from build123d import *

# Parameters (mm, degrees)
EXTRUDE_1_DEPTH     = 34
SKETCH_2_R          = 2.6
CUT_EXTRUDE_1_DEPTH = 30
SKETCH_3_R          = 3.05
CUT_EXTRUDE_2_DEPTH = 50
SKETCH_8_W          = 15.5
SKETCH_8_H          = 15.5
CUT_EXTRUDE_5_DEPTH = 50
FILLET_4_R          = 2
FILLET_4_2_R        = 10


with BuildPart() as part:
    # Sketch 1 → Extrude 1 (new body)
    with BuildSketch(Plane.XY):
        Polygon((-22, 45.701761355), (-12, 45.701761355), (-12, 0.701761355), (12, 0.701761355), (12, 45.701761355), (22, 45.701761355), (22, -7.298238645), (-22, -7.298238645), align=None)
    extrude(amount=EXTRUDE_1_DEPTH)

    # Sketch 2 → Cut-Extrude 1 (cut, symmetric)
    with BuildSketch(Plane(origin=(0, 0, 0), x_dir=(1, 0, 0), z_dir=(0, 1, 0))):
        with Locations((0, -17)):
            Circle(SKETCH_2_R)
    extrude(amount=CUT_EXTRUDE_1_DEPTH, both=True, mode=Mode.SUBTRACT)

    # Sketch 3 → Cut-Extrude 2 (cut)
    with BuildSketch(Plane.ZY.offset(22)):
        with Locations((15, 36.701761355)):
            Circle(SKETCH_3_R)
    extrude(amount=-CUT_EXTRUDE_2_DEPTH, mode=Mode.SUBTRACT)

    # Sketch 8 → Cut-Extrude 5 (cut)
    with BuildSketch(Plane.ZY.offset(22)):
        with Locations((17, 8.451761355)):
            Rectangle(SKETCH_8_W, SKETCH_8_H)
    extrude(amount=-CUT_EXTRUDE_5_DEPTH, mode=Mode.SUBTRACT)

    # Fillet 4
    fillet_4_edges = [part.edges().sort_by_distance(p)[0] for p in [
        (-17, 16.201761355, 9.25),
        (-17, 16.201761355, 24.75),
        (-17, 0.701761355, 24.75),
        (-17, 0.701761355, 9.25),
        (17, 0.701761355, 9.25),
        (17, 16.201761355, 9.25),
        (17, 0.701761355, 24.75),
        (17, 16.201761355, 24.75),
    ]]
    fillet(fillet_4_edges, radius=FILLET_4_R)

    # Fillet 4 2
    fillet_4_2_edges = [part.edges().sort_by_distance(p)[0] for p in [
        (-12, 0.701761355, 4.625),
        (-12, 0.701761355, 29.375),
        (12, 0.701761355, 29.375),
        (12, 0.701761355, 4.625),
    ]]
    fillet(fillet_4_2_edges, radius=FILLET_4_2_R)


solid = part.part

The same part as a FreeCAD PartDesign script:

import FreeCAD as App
import Part
import Sketcher
from FreeCAD import Vector
Q = App.Units.Quantity


def edges_at(feature, points):
    """Names of the edges that pass closest to the given points."""
    edges = feature.Shape.Edges
    near = lambda p: min(range(len(edges)), key=lambda i: edges[i].distToShape(Part.Vertex(*p))[0])
    return sorted({f"Edge{near(p) + 1}" for p in points})

doc = App.newDocument("Part")
body = doc.addObject("PartDesign::Body", "Body")

sketch1 = doc.addObject("Sketcher::SketchObject", "Sketch")
body.addObject(sketch1)
sketch1.AttachmentSupport = (doc.XY_Plane, [""])
sketch1.MapMode = "FlatFace"
sketch1.addGeometry([
    Part.LineSegment(Vector(-12, 45.701761, 0), Vector(-22, 45.701761, 0)),
    Part.LineSegment(Vector(-22, 45.701761, 0), Vector(-22, -7.298239, 0)),
    Part.LineSegment(Vector(-22, -7.298239, 0), Vector(22, -7.298239, 0)),
    Part.LineSegment(Vector(22, -7.298239, 0), Vector(22, 45.701761, 0)),
    Part.LineSegment(Vector(22, 45.701761, 0), Vector(12, 45.701761, 0)),
    Part.LineSegment(Vector(12, 45.701761, 0), Vector(12, 0.701761, 0)),
    Part.LineSegment(Vector(12, 0.701761, 0), Vector(-12, 0.701761, 0)),
    Part.LineSegment(Vector(-12, 0.701761, 0), Vector(-12, 45.701761, 0)),
], False)
sketch1.addConstraint([
    Sketcher.Constraint("Coincident", 0, 2, 1, 1),
    Sketcher.Constraint("Coincident", 1, 2, 2, 1),
    Sketcher.Constraint("Coincident", 2, 2, 3, 1),
    Sketcher.Constraint("Coincident", 3, 2, 4, 1),
    Sketcher.Constraint("Coincident", 4, 2, 5, 1),
    Sketcher.Constraint("Coincident", 5, 2, 6, 1),
    Sketcher.Constraint("Coincident", 6, 2, 7, 1),
    Sketcher.Constraint("Coincident", 7, 2, 0, 1),
    Sketcher.Constraint("Horizontal", 0),
    Sketcher.Constraint("Vertical", 1),
    Sketcher.Constraint("Horizontal", 2),
    Sketcher.Constraint("Vertical", 3),
    Sketcher.Constraint("Horizontal", 4),
    Sketcher.Constraint("Vertical", 5),
    Sketcher.Constraint("Horizontal", 6),
    Sketcher.Constraint("Vertical", 7),
    Sketcher.Constraint("Symmetric", 0, 2, 3, 2, -2),
    Sketcher.Constraint("Equal", 0, 4),
    Sketcher.Constraint("DistanceX", 0, 2, 0, 1, Q("10 mm")),
    Sketcher.Constraint("DistanceX", 2, 1, 2, 2, Q("44 mm")),
    Sketcher.Constraint("DistanceY", 1, 2, 1, 1, Q("53 mm")),
    Sketcher.Constraint("DistanceY", 5, 2, 5, 1, Q("45 mm")),
    Sketcher.Constraint("DistanceY", -1, 1, 0, 2, Q("45.701761 mm")),
])
pad1 = doc.addObject("PartDesign::Pad", "Pad")
body.addObject(pad1)
pad1.Profile = sketch1
pad1.Length = 34

sketch2 = doc.addObject("Sketcher::SketchObject", "Sketch001")
body.addObject(sketch2)
sketch2.AttachmentSupport = (doc.XZ_Plane, [""])
sketch2.MapMode = "FlatFace"
sketch2.addGeometry(Part.Circle(Vector(0, 17, 0), Vector(0, 0, 1), 2.6), False)
sketch2.addConstraint([
    Sketcher.Constraint("PointOnObject", 0, 3, -2),
    Sketcher.Constraint("Diameter", 0, Q("5.2 mm")),
    Sketcher.Constraint("DistanceY", -1, 1, 0, 3, Q("17 mm")),
])
pocket1 = doc.addObject("PartDesign::Pocket", "Pocket")
body.addObject(pocket1)
pocket1.Profile = sketch2
pocket1.Length = 60
pocket1.Midplane = True

sketch3 = doc.addObject("Sketcher::SketchObject", "Sketch002")
body.addObject(sketch3)
sketch3.AttachmentSupport = (doc.YZ_Plane, [""])
sketch3.MapMode = "FlatFace"
sketch3.AttachmentOffset = App.Placement(Vector(0, 0, -22), App.Rotation())
sketch3.addGeometry(Part.Circle(Vector(36.701761, 15, 0), Vector(0, 0, 1), 3.05), False)
sketch3.addConstraint([
    Sketcher.Constraint("Diameter", 0, Q("6.1 mm")),
    Sketcher.Constraint("DistanceY", -1, 1, 0, 3, Q("15 mm")),
    Sketcher.Constraint("DistanceX", -1, 1, 0, 3, Q("36.701761 mm")),
])
pocket2 = doc.addObject("PartDesign::Pocket", "Pocket001")
body.addObject(pocket2)
pocket2.Profile = sketch3
pocket2.Length = 50
pocket2.Reversed = True

sketch4 = doc.addObject("Sketcher::SketchObject", "Sketch003")
body.addObject(sketch4)
sketch4.AttachmentSupport = (doc.YZ_Plane, [""])
sketch4.MapMode = "FlatFace"
sketch4.AttachmentOffset = App.Placement(Vector(0, 0, -22), App.Rotation())
sketch4.addGeometry([
    Part.LineSegment(Vector(16.201761, 9.25, 0), Vector(0.701761, 9.25, 0)),
    Part.LineSegment(Vector(0.701761, 9.25, 0), Vector(0.701761, 24.75, 0)),
    Part.LineSegment(Vector(0.701761, 24.75, 0), Vector(16.201761, 24.75, 0)),
    Part.LineSegment(Vector(16.201761, 24.75, 0), Vector(16.201761, 9.25, 0)),
], False)
sketch4.addConstraint([
    Sketcher.Constraint("Coincident", 0, 2, 1, 1),
    Sketcher.Constraint("Coincident", 1, 2, 2, 1),
    Sketcher.Constraint("Coincident", 2, 2, 3, 1),
    Sketcher.Constraint("Coincident", 3, 2, 0, 1),
    Sketcher.Constraint("Horizontal", 0),
    Sketcher.Constraint("Vertical", 1),
    Sketcher.Constraint("Horizontal", 2),
    Sketcher.Constraint("Vertical", 3),
    Sketcher.Constraint("Equal", 2, 1),
    Sketcher.Constraint("DistanceX", 0, 2, 0, 1, Q("15.5 mm")),
    Sketcher.Constraint("DistanceY", -1, 1, 0, 2, Q("9.25 mm")),
    Sketcher.Constraint("DistanceX", -1, 1, 0, 2, Q("0.701761 mm")),
])
pocket3 = doc.addObject("PartDesign::Pocket", "Pocket002")
body.addObject(pocket3)
pocket3.Profile = sketch4
pocket3.Length = 50
pocket3.Reversed = True
doc.recompute()

fillet = doc.addObject("PartDesign::Fillet", "Fillet")
body.addObject(fillet)
fillet.Base = (pocket3, edges_at(pocket3, [
    (-17, 16.202, 9.25),
    (-17, 16.202, 24.75),
    (-17, 0.702, 24.75),
    (-17, 0.702, 9.25),
    (17, 0.702, 9.25),
    (17, 16.202, 9.25),
    (17, 0.702, 24.75),
    (17, 16.202, 24.75),
]))
fillet.Radius = 2
doc.recompute()

fillet2 = doc.addObject("PartDesign::Fillet", "Fillet001")
body.addObject(fillet2)
fillet2.Base = (fillet, edges_at(fillet, [
    (-12, 0.702, 5.625),
    (-12, 0.702, 28.375),
    (12, 0.702, 28.375),
    (12, 0.702, 5.625),
]))
fillet2.Radius = 10

doc.recompute()
